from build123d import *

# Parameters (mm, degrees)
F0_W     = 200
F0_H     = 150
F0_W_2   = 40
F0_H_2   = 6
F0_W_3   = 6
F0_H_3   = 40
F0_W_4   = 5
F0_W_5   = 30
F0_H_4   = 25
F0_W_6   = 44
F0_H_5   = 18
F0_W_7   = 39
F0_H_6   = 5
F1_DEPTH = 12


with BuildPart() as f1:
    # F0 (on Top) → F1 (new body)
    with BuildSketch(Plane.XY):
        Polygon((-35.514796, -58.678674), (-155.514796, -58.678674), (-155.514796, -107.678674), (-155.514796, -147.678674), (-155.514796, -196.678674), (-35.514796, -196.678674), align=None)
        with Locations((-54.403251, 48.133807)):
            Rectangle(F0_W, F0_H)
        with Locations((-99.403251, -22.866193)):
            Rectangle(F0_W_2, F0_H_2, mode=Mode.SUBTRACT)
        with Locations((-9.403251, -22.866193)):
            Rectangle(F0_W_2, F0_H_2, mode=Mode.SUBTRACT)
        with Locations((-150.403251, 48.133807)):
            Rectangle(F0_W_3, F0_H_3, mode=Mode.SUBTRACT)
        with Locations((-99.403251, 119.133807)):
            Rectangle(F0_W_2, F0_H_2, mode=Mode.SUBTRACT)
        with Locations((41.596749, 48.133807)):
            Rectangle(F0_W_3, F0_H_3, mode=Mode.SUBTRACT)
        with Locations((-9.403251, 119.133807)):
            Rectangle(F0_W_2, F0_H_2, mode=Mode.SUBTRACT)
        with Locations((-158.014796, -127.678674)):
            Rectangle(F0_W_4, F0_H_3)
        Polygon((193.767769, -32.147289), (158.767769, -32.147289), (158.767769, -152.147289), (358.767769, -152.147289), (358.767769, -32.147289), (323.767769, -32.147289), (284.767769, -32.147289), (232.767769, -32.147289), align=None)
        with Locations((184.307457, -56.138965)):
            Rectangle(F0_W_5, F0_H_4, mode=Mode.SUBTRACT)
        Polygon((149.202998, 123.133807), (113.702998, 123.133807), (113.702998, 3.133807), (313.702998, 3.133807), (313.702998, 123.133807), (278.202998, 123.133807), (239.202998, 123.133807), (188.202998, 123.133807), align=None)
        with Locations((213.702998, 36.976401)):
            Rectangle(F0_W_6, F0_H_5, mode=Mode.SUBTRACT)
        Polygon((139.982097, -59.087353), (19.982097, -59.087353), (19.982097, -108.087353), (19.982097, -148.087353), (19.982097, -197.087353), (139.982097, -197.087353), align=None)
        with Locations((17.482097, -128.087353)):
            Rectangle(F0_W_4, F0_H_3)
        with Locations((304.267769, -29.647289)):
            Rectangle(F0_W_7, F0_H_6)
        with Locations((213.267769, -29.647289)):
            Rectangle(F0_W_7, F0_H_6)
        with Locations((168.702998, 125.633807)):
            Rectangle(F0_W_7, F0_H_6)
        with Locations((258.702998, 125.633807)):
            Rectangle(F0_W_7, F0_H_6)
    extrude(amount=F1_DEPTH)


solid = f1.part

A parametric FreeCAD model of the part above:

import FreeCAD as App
import Part
import Sketcher
from FreeCAD import Vector
Q = App.Units.Quantity

doc = App.newDocument("Part")
body = doc.addObject("PartDesign::Body", "Body")
body.AllowCompound = True

# Sketch on XY plane
sketch1 = doc.addObject("Sketcher::SketchObject", "Sketch")
body.addObject(sketch1)
sketch1.AttachmentSupport = (doc.XY_Plane, [""])
sketch1.MapMode = "FlatFace"
sketch1.addGeometry(Part.LineSegment(Vector(-35.5, -58.7, 0), Vector(-155.5, -58.7, 0)), False)
sketch1.addGeometry(Part.LineSegment(Vector(-155.5, -58.7, 0), Vector(-155.5, -107.7, 0)), False)
sketch1.addGeometry(Part.LineSegment(Vector(-155.5, -107.7, 0), Vector(-160.5, -107.7, 0)), False)
sketch1.addGeometry(Part.LineSegment(Vector(-160.5, -107.7, 0), Vector(-160.5, -147.7, 0)), False)
sketch1.addGeometry(Part.LineSegment(Vector(-160.5, -147.7, 0), Vector(-155.5, -147.7, 0)), False)
sketch1.addGeometry(Part.LineSegment(Vector(-155.5, -147.7, 0), Vector(-155.5, -196.7, 0)), False)
sketch1.addGeometry(Part.LineSegment(Vector(-155.5, -196.7, 0), Vector(-35.5, -196.7, 0)), False)
sketch1.addGeometry(Part.LineSegment(Vector(-35.5, -196.7, 0), Vector(-35.5, -58.7, 0)), False)
sketch1.addGeometry(Part.LineSegment(Vector(-154.4, 123.1, 0), Vector(-154.4, -26.9, 0)), False)
sketch1.addGeometry(Part.LineSegment(Vector(-154.4, -26.9, 0), Vector(45.6, -26.9, 0)), False)
sketch1.addGeometry(Part.LineSegment(Vector(45.6, -26.9, 0), Vector(45.6, 123.1, 0)), False)
sketch1.addGeometry(Part.LineSegment(Vector(45.6, 123.1, 0), Vector(-154.4, 123.1, 0)), False)
sketch1.addGeometry(Part.LineSegment(Vector(-79.4, -25.9, 0), Vector(-119.4, -25.9, 0)), False)
sketch1.addGeometry(Part.LineSegment(Vector(-119.4, -25.9, 0), Vector(-119.4, -19.9, 0)), False)
sketch1.addGeometry(Part.LineSegment(Vector(-119.4, -19.9, 0), Vector(-79.4, -19.9, 0)), False)
sketch1.addGeometry(Part.LineSegment(Vector(-79.4, -19.9, 0), Vector(-79.4, -25.9, 0)), False)
sketch1.addGeometry(Part.LineSegment(Vector(10.6, -25.9, 0), Vector(-29.4, -25.9, 0)), False)
sketch1.addGeometry(Part.LineSegment(Vector(-29.4, -25.9, 0), Vector(-29.4, -19.9, 0)), False)
sketch1.addGeometry(Part.LineSegment(Vector(-29.4, -19.9, 0), Vector(10.6, -19.9, 0)), False)
sketch1.addGeometry(Part.LineSegment(Vector(10.6, -19.9, 0), Vector(10.6, -25.9, 0)), False)
sketch1.addGeometry(Part.LineSegment(Vector(-147.4, 28.1, 0), Vector(-153.4, 28.1, 0)), False)
sketch1.addGeometry(Part.LineSegment(Vector(-153.4, 28.1, 0), Vector(-153.4, 68.1, 0)), False)
sketch1.addGeometry(Part.LineSegment(Vector(-153.4, 68.1, 0), Vector(-147.4, 68.1, 0)), False)
sketch1.addGeometry(Part.LineSegment(Vector(-147.4, 68.1, 0), Vector(-147.4, 28.1, 0)), False)
sketch1.addGeometry(Part.LineSegment(Vector(-79.4, 116.1, 0), Vector(-119.4, 116.1, 0)), False)
sketch1.addGeometry(Part.LineSegment(Vector(-119.4, 116.1, 0), Vector(-119.4, 122.1, 0)), False)
sketch1.addGeometry(Part.LineSegment(Vector(-119.4, 122.1, 0), Vector(-79.4, 122.1, 0)), False)
sketch1.addGeometry(Part.LineSegment(Vector(-79.4, 122.1, 0), Vector(-79.4, 116.1, 0)), False)
sketch1.addGeometry(Part.LineSegment(Vector(44.6, 28.1, 0), Vector(38.6, 28.1, 0)), False)
sketch1.addGeometry(Part.LineSegment(Vector(38.6, 28.1, 0), Vector(38.6, 68.1, 0)), False)
sketch1.addGeometry(Part.LineSegment(Vector(38.6, 68.1, 0), Vector(44.6, 68.1, 0)), False)
sketch1.addGeometry(Part.LineSegment(Vector(44.6, 68.1, 0), Vector(44.6, 28.1, 0)), False)
sketch1.addGeometry(Part.LineSegment(Vector(10.6, 116.1, 0), Vector(-29.4, 116.1, 0)), False)
sketch1.addGeometry(Part.LineSegment(Vector(-29.4, 116.1, 0), Vector(-29.4, 122.1, 0)), False)
sketch1.addGeometry(Part.LineSegment(Vector(-29.4, 122.1, 0), Vector(10.6, 122.1, 0)), False)
sketch1.addGeometry(Part.LineSegment(Vector(10.6, 122.1, 0), Vector(10.6, 116.1, 0)), False)
sketch1.addGeometry(Part.LineSegment(Vector(158.8, -32.1, 0), Vector(158.8, -152.1, 0)), False)
sketch1.addGeometry(Part.LineSegment(Vector(158.8, -152.1, 0), Vector(358.8, -152.1, 0)), False)
sketch1.addGeometry(Part.LineSegment(Vector(358.8, -152.1, 0), Vector(358.8, -32.1, 0)), False)
sketch1.addGeometry(Part.LineSegment(Vector(358.8, -32.1, 0), Vector(323.8, -32.1, 0)), False)
sketch1.addGeometry(Part.LineSegment(Vector(323.8, -32.1, 0), Vector(323.8, -27.1, 0)), False)
sketch1.addGeometry(Part.LineSegment(Vector(323.8, -27.1, 0), Vector(284.8, -27.1, 0)), False)
sketch1.addGeometry(Part.LineSegment(Vector(284.8, -27.1, 0), Vector(284.8, -32.1, 0)), False)
sketch1.addGeometry(Part.LineSegment(Vector(284.8, -32.1, 0), Vector(232.8, -32.1, 0)), False)
sketch1.addGeometry(Part.LineSegment(Vector(232.8, -32.1, 0), Vector(232.8, -27.1, 0)), False)
sketch1.addGeometry(Part.LineSegment(Vector(232.8, -27.1, 0), Vector(193.8, -27.1, 0)), False)
sketch1.addGeometry(Part.LineSegment(Vector(193.8, -27.1, 0), Vector(193.8, -32.1, 0)), False)
sketch1.addGeometry(Part.LineSegment(Vector(193.8, -32.1, 0), Vector(158.8, -32.1, 0)), False)
sketch1.addGeometry(Part.LineSegment(Vector(199.3, -68.6, 0), Vector(169.3, -68.6, 0)), False)
sketch1.addGeometry(Part.LineSegment(Vector(169.3, -68.6, 0), Vector(169.3, -43.6, 0)), False)
sketch1.addGeometry(Part.LineSegment(Vector(169.3, -43.6, 0), Vector(199.3, -43.6, 0)), False)
sketch1.addGeometry(Part.LineSegment(Vector(199.3, -43.6, 0), Vector(199.3, -68.6, 0)), False)
sketch1.addGeometry(Part.LineSegment(Vector(113.7, 123.1, 0), Vector(113.7, 3.1, 0)), False)
sketch1.addGeometry(Part.LineSegment(Vector(113.7, 3.1, 0), Vector(313.7, 3.1, 0)), False)
sketch1.addGeometry(Part.LineSegment(Vector(313.7, 3.1, 0), Vector(313.7, 123.1, 0)), False)
sketch1.addGeometry(Part.LineSegment(Vector(313.7, 123.1, 0), Vector(278.2, 123.1, 0)), False)
sketch1.addGeometry(Part.LineSegment(Vector(278.2, 123.1, 0), Vector(278.2, 128.1, 0)), False)
sketch1.addGeometry(Part.LineSegment(Vector(278.2, 128.1, 0), Vector(239.2, 128.1, 0)), False)
sketch1.addGeometry(Part.LineSegment(Vector(239.2, 128.1, 0), Vector(239.2, 123.1, 0)), False)
sketch1.addGeometry(Part.LineSegment(Vector(239.2, 123.1, 0), Vector(188.2, 123.1, 0)), False)
sketch1.addGeometry(Part.LineSegment(Vector(188.2, 123.1, 0), Vector(188.2, 128.1, 0)), False)
sketch1.addGeometry(Part.LineSegment(Vector(188.2, 128.1, 0), Vector(149.2, 128.1, 0)), False)
sketch1.addGeometry(Part.LineSegment(Vector(149.2, 128.1, 0), Vector(149.2, 123.1, 0)), False)
sketch1.addGeometry(Part.LineSegment(Vector(149.2, 123.1, 0), Vector(113.7, 123.1, 0)), False)
sketch1.addGeometry(Part.LineSegment(Vector(235.7, 28, 0), Vector(191.7, 28, 0)), False)
sketch1.addGeometry(Part.LineSegment(Vector(191.7, 28, 0), Vector(191.7, 46, 0)), False)
sketch1.addGeometry(Part.LineSegment(Vector(191.7, 46, 0), Vector(235.7, 46, 0)), False)
sketch1.addGeometry(Part.LineSegment(Vector(235.7, 46, 0), Vector(235.7, 28, 0)), False)
sketch1.addGeometry(Part.LineSegment(Vector(140, -59.1, 0), Vector(20, -59.1, 0)), False)
sketch1.addGeometry(Part.LineSegment(Vector(20, -59.1, 0), Vector(20, -108.1, 0)), False)
sketch1.addGeometry(Part.LineSegment(Vector(20, -108.1, 0), Vector(15, -108.1, 0)), False)
sketch1.addGeometry(Part.LineSegment(Vector(15, -108.1, 0), Vector(15, -148.1, 0)), False)
sketch1.addGeometry(Part.LineSegment(Vector(15, -148.1, 0), Vector(20, -148.1, 0)), False)
sketch1.addGeometry(Part.LineSegment(Vector(20, -148.1, 0), Vector(20, -197.1, 0)), False)
sketch1.addGeometry(Part.LineSegment(Vector(20, -197.1, 0), Vector(140, -197.1, 0)), False)
sketch1.addGeometry(Part.LineSegment(Vector(140, -197.1, 0), Vector(140, -59.1, 0)), False)
sketch1.addConstraint(Sketcher.Constraint("Coincident", 0, 2, 1, 1))
sketch1.addConstraint(Sketcher.Constraint("Coincident", 1, 2, 2, 1))
sketch1.addConstraint(Sketcher.Constraint("Coincident", 2, 2, 3, 1))
sketch1.addConstraint(Sketcher.Constraint("Coincident", 3, 2, 4, 1))
sketch1.addConstraint(Sketcher.Constraint("Coincident", 4, 2, 5, 1))
sketch1.addConstraint(Sketcher.Constraint("Coincident", 5, 2, 6, 1))
sketch1.addConstraint(Sketcher.Constraint("Coincident", 6, 2, 7, 1))
sketch1.addConstraint(Sketcher.Constraint("Coincident", 7, 2, 0, 1))
sketch1.addConstraint(Sketcher.Constraint("Coincident", 8, 2, 9, 1))
sketch1.addConstraint(Sketcher.Constraint("Coincident", 9, 2, 10, 1))
sketch1.addConstraint(Sketcher.Constraint("Coincident", 10, 2, 11, 1))
sketch1.addConstraint(Sketcher.Constraint("Coincident", 11, 2, 8, 1))
sketch1.addConstraint(Sketcher.Constraint("Coincident", 12, 2, 13, 1))
sketch1.addConstraint(Sketcher.Constraint("Coincident", 13, 2, 14, 1))
sketch1.addConstraint(Sketcher.Constraint("Coincident", 14, 2, 15, 1))
sketch1.addConstraint(Sketcher.Constraint("Coincident", 15, 2, 12, 1))
sketch1.addConstraint(Sketcher.Constraint("Coincident", 16, 2, 17, 1))
sketch1.addConstraint(Sketcher.Constraint("Coincident", 17, 2, 18, 1))
sketch1.addConstraint(Sketcher.Constraint("Coincident", 18, 2, 19, 1))
sketch1.addConstraint(Sketcher.Constraint("Coincident", 19, 2, 16, 1))
sketch1.addConstraint(Sketcher.Constraint("Coincident", 20, 2, 21, 1))
sketch1.addConstraint(Sketcher.Constraint("Coincident", 21, 2, 22, 1))
sketch1.addConstraint(Sketcher.Constraint("Coincident", 22, 2, 23, 1))
sketch1.addConstraint(Sketcher.Constraint("Coincident", 23, 2, 20, 1))
sketch1.addConstraint(Sketcher.Constraint("Coincident", 24, 2, 25, 1))
sketch1.addConstraint(Sketcher.Constraint("Coincident", 25, 2, 26, 1))
sketch1.addConstraint(Sketcher.Constraint("Coincident", 26, 2, 27, 1))
sketch1.addConstraint(Sketcher.Constraint("Coincident", 27, 2, 24, 1))
sketch1.addConstraint(Sketcher.Constraint("Coincident", 28, 2, 29, 1))
sketch1.addConstraint(Sketcher.Constraint("Coincident", 29, 2, 30, 1))
sketch1.addConstraint(Sketcher.Constraint("Coincident", 30, 2, 31, 1))
sketch1.addConstraint(Sketcher.Constraint("Coincident", 31, 2, 28, 1))
sketch1.addConstraint(Sketcher.Constraint("Coincident", 32, 2, 33, 1))
sketch1.addConstraint(Sketcher.Constraint("Coincident", 33, 2, 34, 1))
sketch1.addConstraint(Sketcher.Constraint("Coincident", 34, 2, 35, 1))
sketch1.addConstraint(Sketcher.Constraint("Coincident", 35, 2, 32, 1))
sketch1.addConstraint(Sketcher.Constraint("Coincident", 36, 2, 37, 1))
sketch1.addConstraint(Sketcher.Constraint("Coincident", 37, 2, 38, 1))
sketch1.addConstraint(Sketcher.Constraint("Coincident", 38, 2, 39, 1))
sketch1.addConstraint(Sketcher.Constraint("Coincident", 39, 2, 40, 1))
sketch1.addConstraint(Sketcher.Constraint("Coincident", 40, 2, 41, 1))
sketch1.addConstraint(Sketcher.Constraint("Coincident", 41, 2, 42, 1))
sketch1.addConstraint(Sketcher.Constraint("Coincident", 42, 2, 43, 1))
sketch1.addConstraint(Sketcher.Constraint("Coincident", 43, 2, 44, 1))
sketch1.addConstraint(Sketcher.Constraint("Coincident", 44, 2, 45, 1))
sketch1.addConstraint(Sketcher.Constraint("Coincident", 45, 2, 46, 1))
sketch1.addConstraint(Sketcher.Constraint("Coincident", 46, 2, 47, 1))
sketch1.addConstraint(Sketcher.Constraint("Coincident", 47, 2, 36, 1))
sketch1.addConstraint(Sketcher.Constraint("Coincident", 48, 2, 49, 1))
sketch1.addConstraint(Sketcher.Constraint("Coincident", 49, 2, 50, 1))
sketch1.addConstraint(Sketcher.Constraint("Coincident", 50, 2, 51, 1))
sketch1.addConstraint(Sketcher.Constraint("Coincident", 51, 2, 48, 1))
sketch1.addConstraint(Sketcher.Constraint("Coincident", 52, 2, 53, 1))
sketch1.addConstraint(Sketcher.Constraint("Coincident", 53, 2, 54, 1))
sketch1.addConstraint(Sketcher.Constraint("Coincident", 54, 2, 55, 1))
sketch1.addConstraint(Sketcher.Constraint("Coincident", 55, 2, 56, 1))
sketch1.addConstraint(Sketcher.Constraint("Coincident", 56, 2, 57, 1))
sketch1.addConstraint(Sketcher.Constraint("Coincident", 57, 2, 58, 1))
sketch1.addConstraint(Sketcher.Constraint("Coincident", 58, 2, 59, 1))
sketch1.addConstraint(Sketcher.Constraint("Coincident", 59, 2, 60, 1))
sketch1.addConstraint(Sketcher.Constraint("Coincident", 60, 2, 61, 1))
sketch1.addConstraint(Sketcher.Constraint("Coincident", 61, 2, 62, 1))
sketch1.addConstraint(Sketcher.Constraint("Coincident", 62, 2, 63, 1))
sketch1.addConstraint(Sketcher.Constraint("Coincident", 63, 2, 52, 1))
sketch1.addConstraint(Sketcher.Constraint("Coincident", 64, 2, 65, 1))
sketch1.addConstraint(Sketcher.Constraint("Coincident", 65, 2, 66, 1))
sketch1.addConstraint(Sketcher.Constraint("Coincident", 66, 2, 67, 1))
sketch1.addConstraint(Sketcher.Constraint("Coincident", 67, 2, 64, 1))
sketch1.addConstraint(Sketcher.Constraint("Coincident", 68, 2, 69, 1))
sketch1.addConstraint(Sketcher.Constraint("Coincident", 69, 2, 70, 1))
sketch1.addConstraint(Sketcher.Constraint("Coincident", 70, 2, 71, 1))
sketch1.addConstraint(Sketcher.Constraint("Coincident", 71, 2, 72, 1))
sketch1.addConstraint(Sketcher.Constraint("Coincident", 72, 2, 73, 1))
sketch1.addConstraint(Sketcher.Constraint("Coincident", 73, 2, 74, 1))
sketch1.addConstraint(Sketcher.Constraint("Coincident", 74, 2, 75, 1))
sketch1.addConstraint(Sketcher.Constraint("Coincident", 75, 2, 68, 1))
sketch1.addConstraint(Sketcher.Constraint("Horizontal", 0))
sketch1.addConstraint(Sketcher.Constraint("Vertical", 1))
sketch1.addConstraint(Sketcher.Constraint("Horizontal", 2))
sketch1.addConstraint(Sketcher.Constraint("Vertical", 3))
sketch1.addConstraint(Sketcher.Constraint("Horizontal", 4))
sketch1.addConstraint(Sketcher.Constraint("Vertical", 5))
sketch1.addConstraint(Sketcher.Constraint("Horizontal", 6))
sketch1.addConstraint(Sketcher.Constraint("Vertical", 7))
sketch1.addConstraint(Sketcher.Constraint("Vertical", 8))
sketch1.addConstraint(Sketcher.Constraint("Horizontal", 9))
sketch1.addConstraint(Sketcher.Constraint("Vertical", 10))
sketch1.addConstraint(Sketcher.Constraint("Horizontal", 11))
sketch1.addConstraint(Sketcher.Constraint("Horizontal", 12))
sketch1.addConstraint(Sketcher.Constraint("Vertical", 13))
sketch1.addConstraint(Sketcher.Constraint("Horizontal", 14))
sketch1.addConstraint(Sketcher.Constraint("Vertical", 15))
sketch1.addConstraint(Sketcher.Constraint("Horizontal", 16))
sketch1.addConstraint(Sketcher.Constraint("Vertical", 17))
sketch1.addConstraint(Sketcher.Constraint("Horizontal", 18))
sketch1.addConstraint(Sketcher.Constraint("Vertical", 19))
sketch1.addConstraint(Sketcher.Constraint("Horizontal", 20))
sketch1.addConstraint(Sketcher.Constraint("Vertical", 21))
sketch1.addConstraint(Sketcher.Constraint("Horizontal", 22))
sketch1.addConstraint(Sketcher.Constraint("Vertical", 23))
sketch1.addConstraint(Sketcher.Constraint("Horizontal", 24))
sketch1.addConstraint(Sketcher.Constraint("Vertical", 25))
sketch1.addConstraint(Sketcher.Constraint("Horizontal", 26))
sketch1.addConstraint(Sketcher.Constraint("Vertical", 27))
sketch1.addConstraint(Sketcher.Constraint("Horizontal", 28))
sketch1.addConstraint(Sketcher.Constraint("Vertical", 29))
sketch1.addConstraint(Sketcher.Constraint("Horizontal", 30))
sketch1.addConstraint(Sketcher.Constraint("Vertical", 31))
sketch1.addConstraint(Sketcher.Constraint("Horizontal", 32))
sketch1.addConstraint(Sketcher.Constraint("Vertical", 33))
sketch1.addConstraint(Sketcher.Constraint("Horizontal", 34))
sketch1.addConstraint(Sketcher.Constraint("Vertical", 35))
sketch1.addConstraint(Sketcher.Constraint("Vertical", 36))
sketch1.addConstraint(Sketcher.Constraint("Horizontal", 37))
sketch1.addConstraint(Sketcher.Constraint("Vertical", 38))
sketch1.addConstraint(Sketcher.Constraint("Horizontal", 39))
sketch1.addConstraint(Sketcher.Constraint("Vertical", 40))
sketch1.addConstraint(Sketcher.Constraint("Horizontal", 41))
sketch1.addConstraint(Sketcher.Constraint("Vertical", 42))
sketch1.addConstraint(Sketcher.Constraint("Horizontal", 43))
sketch1.addConstraint(Sketcher.Constraint("Vertical", 44))
sketch1.addConstraint(Sketcher.Constraint("Horizontal", 45))
sketch1.addConstraint(Sketcher.Constraint("Vertical", 46))
sketch1.addConstraint(Sketcher.Constraint("Horizontal", 47))
sketch1.addConstraint(Sketcher.Constraint("Horizontal", 48))
sketch1.addConstraint(Sketcher.Constraint("Vertical", 49))
sketch1.addConstraint(Sketcher.Constraint("Horizontal", 50))
sketch1.addConstraint(Sketcher.Constraint("Vertical", 51))
sketch1.addConstraint(Sketcher.Constraint("Vertical", 52))
sketch1.addConstraint(Sketcher.Constraint("Horizontal", 53))
sketch1.addConstraint(Sketcher.Constraint("Vertical", 54))
sketch1.addConstraint(Sketcher.Constraint("Horizontal", 55))
sketch1.addConstraint(Sketcher.Constraint("Vertical", 56))
sketch1.addConstraint(Sketcher.Constraint("Horizontal", 57))
sketch1.addConstraint(Sketcher.Constraint("Vertical", 58))
sketch1.addConstraint(Sketcher.Constraint("Horizontal", 59))
sketch1.addConstraint(Sketcher.Constraint("Vertical", 60))
sketch1.addConstraint(Sketcher.Constraint("Horizontal", 61))
sketch1.addConstraint(Sketcher.Constraint("Vertical", 62))
sketch1.addConstraint(Sketcher.Constraint("Horizontal", 63))
sketch1.addConstraint(Sketcher.Constraint("Horizontal", 64))
sketch1.addConstraint(Sketcher.Constraint("Vertical", 65))
sketch1.addConstraint(Sketcher.Constraint("Horizontal", 66))
sketch1.addConstraint(Sketcher.Constraint("Vertical", 67))
sketch1.addConstraint(Sketcher.Constraint("Horizontal", 68))
sketch1.addConstraint(Sketcher.Constraint("Vertical", 69))
sketch1.addConstraint(Sketcher.Constraint("Horizontal", 70))
sketch1.addConstraint(Sketcher.Constraint("Vertical", 71))
sketch1.addConstraint(Sketcher.Constraint("Horizontal", 72))
sketch1.addConstraint(Sketcher.Constraint("Vertical", 73))
sketch1.addConstraint(Sketcher.Constraint("Horizontal", 74))
sketch1.addConstraint(Sketcher.Constraint("Vertical", 75))
sketch1.addConstraint(Sketcher.Constraint("Horizontal", 15, 2, 16, 2))
sketch1.addConstraint(Sketcher.Constraint("Horizontal", 14, 2, 17, 2))
sketch1.addConstraint(Sketcher.Constraint("Horizontal", 23, 2, 28, 2))
sketch1.addConstraint(Sketcher.Constraint("Horizontal", 22, 2, 29, 2))
sketch1.addConstraint(Sketcher.Constraint("Horizontal", 27, 2, 32, 2))
sketch1.addConstraint(Sketcher.Constraint("Horizontal", 26, 2, 33, 2))
sketch1.addConstraint(Sketcher.Constraint("Horizontal", 39, 2, 42, 2))
sketch1.addConstraint(Sketcher.Constraint("Horizontal", 41, 2, 44, 2))
sketch1.addConstraint(Sketcher.Constraint("Horizontal", 43, 2, 46, 2))
sketch1.addConstraint(Sketcher.Constraint("Horizontal", 11, 2, 54, 2))
sketch1.addConstraint(Sketcher.Constraint("Horizontal", 55, 2, 58, 2))
sketch1.addConstraint(Sketcher.Constraint("Horizontal", 57, 2, 60, 2))
sketch1.addConstraint(Sketcher.Constraint("Horizontal", 59, 2, 62, 2))
sketch1.addConstraint(Sketcher.Constraint("Vertical", 1, 2, 4, 2))
sketch1.addConstraint(Sketcher.Constraint("Vertical", 13, 2, 24, 2))
sketch1.addConstraint(Sketcher.Constraint("Vertical", 15, 2, 26, 2))
sketch1.addConstraint(Sketcher.Constraint("Vertical", 17, 2, 32, 2))
sketch1.addConstraint(Sketcher.Constraint("Vertical", 19, 2, 34, 2))
sketch1.addConstraint(Sketcher.Constraint("Vertical", 69, 2, 72, 2))
sketch1.addConstraint(Sketcher.Constraint("Equal", 14, 16))
sketch1.addConstraint(Sketcher.Constraint("Equal", 22, 28))
sketch1.addConstraint(Sketcher.Constraint("Equal", 11, 37))
sketch1.addConstraint(Sketcher.Constraint("Equal", 41, 45))
sketch1.addConstraint(Sketcher.Constraint("Equal", 39, 47))
sketch1.addConstraint(Sketcher.Constraint("Equal", 37, 53))
sketch1.addConstraint(Sketcher.Constraint("Equal", 45, 57))
sketch1.addConstraint(Sketcher.Constraint("Equal", 57, 61))
sketch1.addConstraint(Sketcher.Constraint("Equal", 55, 63))
sketch1.addConstraint(Sketcher.Constraint("Equal", 6, 68))
sketch1.addConstraint(Sketcher.Constraint("Equal", 4, 70))
sketch1.addConstraint(Sketcher.Constraint("Equal", 34, 3))
sketch1.addConstraint(Sketcher.Constraint("Equal", 1, 5))
sketch1.addConstraint(Sketcher.Constraint("Equal", 30, 13))
sketch1.addConstraint(Sketcher.Constraint("Equal", 3, 21))
sketch1.addConstraint(Sketcher.Constraint("Equal", 19, 25))
sketch1.addConstraint(Sketcher.Constraint("Equal", 74, 36))
sketch1.addConstraint(Sketcher.Constraint("Equal", 72, 40))
sketch1.addConstraint(Sketcher.Constraint("Equal", 38, 52))
sketch1.addConstraint(Sketcher.Constraint("Equal", 46, 56))
sketch1.addConstraint(Sketcher.Constraint("Equal", 5, 69))
sketch1.addConstraint(Sketcher.Constraint("Equal", 31, 71))
sketch1.addConstraint(Sketcher.Constraint("Equal", 69, 73))
sketch1.addConstraint(Sketcher.Constraint("DistanceX", 0, 2, 0, 1, Q("120 mm")))
sketch1.addConstraint(Sketcher.Constraint("DistanceX", 2, 2, 2, 1, Q("5 mm")))
sketch1.addConstraint(Sketcher.Constraint("DistanceX", 9, 1, 9, 2, Q("200 mm")))
sketch1.addConstraint(Sketcher.Constraint("DistanceX", 12, 2, 12, 1, Q("40 mm")))
sketch1.addConstraint(Sketcher.Constraint("DistanceX", 20, 2, 20, 1, Q("6 mm")))
sketch1.addConstraint(Sketcher.Constraint("DistanceX", 39, 2, 39, 1, Q("35 mm")))
sketch1.addConstraint(Sketcher.Constraint("DistanceX", 41, 2, 41, 1, Q("39 mm")))
sketch1.addConstraint(Sketcher.Constraint("DistanceX", 48, 2, 48, 1, Q("30 mm")))
sketch1.addConstraint(Sketcher.Constraint("DistanceX", 59, 2, 59, 1, Q("51 mm")))
sketch1.addConstraint(Sketcher.Constraint("DistanceX", 64, 2, 64, 1, Q("44 mm")))
sketch1.addConstraint(Sketcher.Constraint("DistanceY", 1, 2, 1, 1, Q("49 mm")))
sketch1.addConstraint(Sketcher.Constraint("DistanceY", 8, 2, 8, 1, Q("150 mm")))
sketch1.addConstraint(Sketcher.Constraint("DistanceY", 49, 1, 49, 2, Q("25 mm")))
sketch1.addConstraint(Sketcher.Constraint("DistanceY", 65, 1, 65, 2, Q("18 mm")))
sketch1.addConstraint(Sketcher.Constraint("DistanceX", -1, 1, 53, 2, Q("313.702998 mm")))
sketch1.addConstraint(Sketcher.Constraint("DistanceX", -1, 1, 64, 2, Q("191.702998 mm")))
sketch1.addConstraint(Sketcher.Constraint("DistanceY", -1, 1, 64, 2, Q("27.976401 mm")))
sketch1.addConstraint(Sketcher.Constraint("DistanceX", 8, 2, -1, 1, Q("154.403251 mm")))
sketch1.addConstraint(Sketcher.Constraint("DistanceX", 12, 2, -1, 1, Q("119.403251 mm")))
sketch1.addConstraint(Sketcher.Constraint("DistanceX", 16, 2, -1, 1, Q("29.403251 mm")))
sketch1.addConstraint(Sketcher.Constraint("DistanceX", 20, 2, -1, 1, Q("153.403251 mm")))
sketch1.addConstraint(Sketcher.Constraint("DistanceX", -1, 1, 28, 2, Q("38.596749 mm")))
sketch1.addConstraint(Sketcher.Constraint("DistanceX", -1, 1, 36, 2, Q("158.767769 mm")))
sketch1.addConstraint(Sketcher.Constraint("DistanceY", 36, 2, -1, 1, Q("152.147289 mm")))
sketch1.addConstraint(Sketcher.Constraint("DistanceX", 0, 2, -1, 1, Q("155.514796 mm")))
sketch1.addConstraint(Sketcher.Constraint("DistanceY", 0, 2, -1, 1, Q("58.678674 mm")))
sketch1.addConstraint(Sketcher.Constraint("DistanceY", 8, 2, -1, 1, Q("26.866193 mm")))
sketch1.addConstraint(Sketcher.Constraint("DistanceY", 12, 2, -1, 1, Q("25.866193 mm")))
sketch1.addConstraint(Sketcher.Constraint("DistanceY", -1, 1, 20, 2, Q("28.133807 mm")))
sketch1.addConstraint(Sketcher.Constraint("DistanceY", -1, 1, 24, 2, Q("116.133807 mm")))
sketch1.addConstraint(Sketcher.Constraint("DistanceX", -1, 1, 48, 2, Q("169.307457 mm")))
sketch1.addConstraint(Sketcher.Constraint("DistanceY", 48, 2, -1, 1, Q("68.638965 mm")))
sketch1.addConstraint(Sketcher.Constraint("DistanceX", -1, 1, 68, 2, Q("19.982097 mm")))
sketch1.addConstraint(Sketcher.Constraint("DistanceY", 68, 2, -1, 1, Q("59.087353 mm")))
pad1 = doc.addObject("PartDesign::Pad", "Pad")
body.addObject(pad1)
pad1.Profile = sketch1
pad1.Length = 12

doc.recompute()
